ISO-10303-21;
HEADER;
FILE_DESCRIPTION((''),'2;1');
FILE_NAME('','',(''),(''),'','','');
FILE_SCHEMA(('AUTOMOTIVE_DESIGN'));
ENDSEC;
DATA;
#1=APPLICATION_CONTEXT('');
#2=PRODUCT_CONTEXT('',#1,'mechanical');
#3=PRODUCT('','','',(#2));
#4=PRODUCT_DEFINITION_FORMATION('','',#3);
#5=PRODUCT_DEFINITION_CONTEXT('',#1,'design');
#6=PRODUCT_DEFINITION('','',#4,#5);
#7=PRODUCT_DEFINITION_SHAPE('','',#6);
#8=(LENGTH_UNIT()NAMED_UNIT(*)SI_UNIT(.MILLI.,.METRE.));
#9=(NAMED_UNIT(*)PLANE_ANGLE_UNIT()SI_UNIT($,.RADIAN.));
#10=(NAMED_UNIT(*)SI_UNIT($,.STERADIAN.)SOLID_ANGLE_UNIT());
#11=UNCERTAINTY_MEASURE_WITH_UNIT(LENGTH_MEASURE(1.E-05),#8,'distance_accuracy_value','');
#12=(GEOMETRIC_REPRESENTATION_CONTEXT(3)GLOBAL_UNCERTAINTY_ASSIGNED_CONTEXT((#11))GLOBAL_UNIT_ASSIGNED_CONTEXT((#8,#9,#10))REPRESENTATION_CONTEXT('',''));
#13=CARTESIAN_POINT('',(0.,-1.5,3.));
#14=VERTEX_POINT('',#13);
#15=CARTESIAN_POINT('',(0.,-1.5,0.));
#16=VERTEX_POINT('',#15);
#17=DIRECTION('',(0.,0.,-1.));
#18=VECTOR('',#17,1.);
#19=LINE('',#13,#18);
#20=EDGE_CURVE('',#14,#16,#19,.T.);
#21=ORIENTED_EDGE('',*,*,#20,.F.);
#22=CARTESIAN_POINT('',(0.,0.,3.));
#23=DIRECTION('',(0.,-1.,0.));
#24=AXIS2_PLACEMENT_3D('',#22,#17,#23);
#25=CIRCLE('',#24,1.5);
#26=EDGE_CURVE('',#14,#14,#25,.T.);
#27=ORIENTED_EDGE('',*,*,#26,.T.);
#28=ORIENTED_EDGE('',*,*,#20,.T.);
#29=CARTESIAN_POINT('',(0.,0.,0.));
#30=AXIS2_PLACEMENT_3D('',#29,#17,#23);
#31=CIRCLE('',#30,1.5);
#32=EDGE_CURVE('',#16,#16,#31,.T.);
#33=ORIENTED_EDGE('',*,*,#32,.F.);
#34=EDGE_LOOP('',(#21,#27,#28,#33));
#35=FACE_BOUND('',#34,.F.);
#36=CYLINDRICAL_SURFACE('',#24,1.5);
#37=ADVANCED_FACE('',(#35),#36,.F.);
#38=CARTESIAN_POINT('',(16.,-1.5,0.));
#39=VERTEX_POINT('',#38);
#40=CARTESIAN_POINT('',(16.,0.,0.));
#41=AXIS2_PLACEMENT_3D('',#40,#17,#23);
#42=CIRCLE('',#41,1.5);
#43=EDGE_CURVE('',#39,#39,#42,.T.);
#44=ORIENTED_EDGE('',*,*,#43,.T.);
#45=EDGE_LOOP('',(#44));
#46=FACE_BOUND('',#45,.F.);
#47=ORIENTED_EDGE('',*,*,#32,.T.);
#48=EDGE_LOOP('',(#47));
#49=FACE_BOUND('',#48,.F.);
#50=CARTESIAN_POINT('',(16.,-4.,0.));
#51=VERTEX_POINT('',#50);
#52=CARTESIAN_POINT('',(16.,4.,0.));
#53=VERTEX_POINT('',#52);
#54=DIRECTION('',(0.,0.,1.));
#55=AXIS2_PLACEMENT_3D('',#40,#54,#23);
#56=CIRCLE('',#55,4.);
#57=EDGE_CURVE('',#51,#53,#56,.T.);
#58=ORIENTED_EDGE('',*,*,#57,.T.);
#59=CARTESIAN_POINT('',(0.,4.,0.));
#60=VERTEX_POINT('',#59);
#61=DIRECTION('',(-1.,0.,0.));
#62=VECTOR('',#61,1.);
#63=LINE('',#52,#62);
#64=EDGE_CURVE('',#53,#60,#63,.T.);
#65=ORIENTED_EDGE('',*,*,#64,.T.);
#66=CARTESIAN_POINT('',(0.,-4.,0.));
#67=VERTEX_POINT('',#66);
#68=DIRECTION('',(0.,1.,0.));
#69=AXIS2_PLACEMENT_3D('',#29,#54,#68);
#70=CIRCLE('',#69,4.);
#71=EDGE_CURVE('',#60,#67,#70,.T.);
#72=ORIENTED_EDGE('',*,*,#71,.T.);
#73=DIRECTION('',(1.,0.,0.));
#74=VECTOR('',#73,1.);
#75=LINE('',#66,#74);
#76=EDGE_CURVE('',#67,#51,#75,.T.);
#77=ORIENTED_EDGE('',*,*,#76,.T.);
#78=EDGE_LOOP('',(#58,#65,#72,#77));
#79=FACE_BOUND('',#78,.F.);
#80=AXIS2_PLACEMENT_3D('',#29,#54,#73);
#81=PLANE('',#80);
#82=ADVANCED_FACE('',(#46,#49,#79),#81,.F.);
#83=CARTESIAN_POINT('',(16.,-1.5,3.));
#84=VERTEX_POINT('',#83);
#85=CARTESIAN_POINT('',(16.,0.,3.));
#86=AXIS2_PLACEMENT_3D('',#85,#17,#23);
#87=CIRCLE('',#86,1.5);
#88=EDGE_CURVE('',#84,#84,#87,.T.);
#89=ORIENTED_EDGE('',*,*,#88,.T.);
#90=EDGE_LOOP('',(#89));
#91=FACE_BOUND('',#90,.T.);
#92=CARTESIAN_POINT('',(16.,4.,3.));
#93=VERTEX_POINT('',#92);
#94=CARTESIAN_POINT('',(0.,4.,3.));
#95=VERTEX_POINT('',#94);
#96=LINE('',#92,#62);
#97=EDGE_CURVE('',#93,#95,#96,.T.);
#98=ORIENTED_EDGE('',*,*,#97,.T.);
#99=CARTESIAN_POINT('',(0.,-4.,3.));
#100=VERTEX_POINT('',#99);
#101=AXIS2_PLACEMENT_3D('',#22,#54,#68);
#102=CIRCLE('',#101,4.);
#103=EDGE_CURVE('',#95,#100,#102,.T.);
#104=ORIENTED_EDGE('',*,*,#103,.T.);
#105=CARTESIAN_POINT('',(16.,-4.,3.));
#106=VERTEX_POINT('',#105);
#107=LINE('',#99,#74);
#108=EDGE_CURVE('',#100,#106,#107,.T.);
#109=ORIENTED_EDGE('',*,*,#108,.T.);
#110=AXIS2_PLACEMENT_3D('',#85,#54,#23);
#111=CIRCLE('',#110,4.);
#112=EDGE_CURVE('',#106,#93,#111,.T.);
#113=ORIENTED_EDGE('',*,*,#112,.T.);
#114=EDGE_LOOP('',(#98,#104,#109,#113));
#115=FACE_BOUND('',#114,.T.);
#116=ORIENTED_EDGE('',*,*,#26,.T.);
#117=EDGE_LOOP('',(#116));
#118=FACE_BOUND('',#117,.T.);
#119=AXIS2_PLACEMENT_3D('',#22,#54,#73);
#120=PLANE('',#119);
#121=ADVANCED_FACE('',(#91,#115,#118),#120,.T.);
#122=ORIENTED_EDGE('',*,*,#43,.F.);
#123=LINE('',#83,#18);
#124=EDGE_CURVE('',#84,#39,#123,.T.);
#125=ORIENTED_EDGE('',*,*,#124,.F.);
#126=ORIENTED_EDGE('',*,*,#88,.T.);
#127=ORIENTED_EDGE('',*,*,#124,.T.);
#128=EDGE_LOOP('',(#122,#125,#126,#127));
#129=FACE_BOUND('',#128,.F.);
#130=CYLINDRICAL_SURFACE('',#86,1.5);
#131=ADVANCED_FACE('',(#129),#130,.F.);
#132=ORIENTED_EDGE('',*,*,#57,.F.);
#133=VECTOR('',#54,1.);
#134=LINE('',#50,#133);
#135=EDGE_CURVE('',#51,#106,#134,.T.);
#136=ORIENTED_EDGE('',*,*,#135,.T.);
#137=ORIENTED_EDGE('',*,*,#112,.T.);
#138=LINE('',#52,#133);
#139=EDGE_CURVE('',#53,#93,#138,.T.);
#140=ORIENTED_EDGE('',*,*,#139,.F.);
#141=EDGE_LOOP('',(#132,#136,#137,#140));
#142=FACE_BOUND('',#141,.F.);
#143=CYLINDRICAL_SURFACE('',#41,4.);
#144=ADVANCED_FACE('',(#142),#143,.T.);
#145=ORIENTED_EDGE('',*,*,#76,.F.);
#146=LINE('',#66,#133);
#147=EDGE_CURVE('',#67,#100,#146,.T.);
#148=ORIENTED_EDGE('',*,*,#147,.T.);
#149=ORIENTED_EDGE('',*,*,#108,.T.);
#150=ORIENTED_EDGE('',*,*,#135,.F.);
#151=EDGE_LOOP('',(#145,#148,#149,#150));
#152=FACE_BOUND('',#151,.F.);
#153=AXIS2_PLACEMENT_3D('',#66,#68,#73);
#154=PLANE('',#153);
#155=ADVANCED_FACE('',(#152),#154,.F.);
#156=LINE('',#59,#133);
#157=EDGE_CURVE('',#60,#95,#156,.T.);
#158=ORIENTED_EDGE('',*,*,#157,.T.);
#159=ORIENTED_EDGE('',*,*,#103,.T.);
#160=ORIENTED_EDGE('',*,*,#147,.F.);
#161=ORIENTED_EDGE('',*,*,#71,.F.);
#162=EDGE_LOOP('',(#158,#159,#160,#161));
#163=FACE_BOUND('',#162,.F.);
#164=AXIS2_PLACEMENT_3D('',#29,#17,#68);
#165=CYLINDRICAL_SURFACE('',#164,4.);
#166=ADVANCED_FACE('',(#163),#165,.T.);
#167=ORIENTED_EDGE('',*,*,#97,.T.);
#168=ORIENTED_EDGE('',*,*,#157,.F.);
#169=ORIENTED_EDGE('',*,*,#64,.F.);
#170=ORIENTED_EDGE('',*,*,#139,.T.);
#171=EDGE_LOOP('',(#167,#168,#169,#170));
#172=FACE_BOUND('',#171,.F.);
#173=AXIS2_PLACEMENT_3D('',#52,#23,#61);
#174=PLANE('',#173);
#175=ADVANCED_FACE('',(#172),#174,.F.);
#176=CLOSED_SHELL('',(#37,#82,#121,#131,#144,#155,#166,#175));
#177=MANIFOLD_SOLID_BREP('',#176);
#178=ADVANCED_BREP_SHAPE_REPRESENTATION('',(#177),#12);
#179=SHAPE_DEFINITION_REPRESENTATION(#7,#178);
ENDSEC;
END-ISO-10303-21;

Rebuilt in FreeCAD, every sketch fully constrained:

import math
import FreeCAD as App
import Part
import Sketcher
Q = App.Units.Quantity

doc = App.newDocument("Part")
body = doc.addObject("PartDesign::Body", "Body")

sketch1 = body.newObject("Sketcher::SketchObject", "Sketch")
sketch1.AttachmentSupport = (doc.getObject("XY_Plane"), [""])
sketch1.MapMode = "FlatFace"
sketch1.addGeometry(Part.ArcOfCircle(Part.Circle(App.Vector(0, 0, 0), App.Vector(0, 0, 1), 4), math.radians(90), math.radians(270)), False)
sketch1.addGeometry(Part.LineSegment(App.Vector(0, -4, 0), App.Vector(16, -4, 0)), False)
sketch1.addGeometry(Part.ArcOfCircle(Part.Circle(App.Vector(16, 0, 0), App.Vector(0, 0, 1), 4), math.radians(-90), math.radians(90)), False)
sketch1.addGeometry(Part.LineSegment(App.Vector(16, 4, 0), App.Vector(0, 4, 0)), False)
sketch1.addConstraint(Sketcher.Constraint("Tangent", 0, 2, 1, 1))
sketch1.addConstraint(Sketcher.Constraint("Tangent", 1, 2, 2, 1))
sketch1.addConstraint(Sketcher.Constraint("Tangent", 2, 2, 3, 1))
sketch1.addConstraint(Sketcher.Constraint("Tangent", 3, 2, 0, 1))
sketch1.addConstraint(Sketcher.Constraint("Horizontal", 1))
sketch1.addConstraint(Sketcher.Constraint("Horizontal", 3))
sketch1.addConstraint(Sketcher.Constraint("Coincident", 0, 3, -1, 1))
sketch1.addConstraint(Sketcher.Constraint("Radius", 0, Q("4 mm")))
sketch1.addConstraint(Sketcher.Constraint("DistanceX", 1, 1, 1, 2, Q("16 mm")))
pad1 = body.newObject("PartDesign::Pad", "Pad")
pad1.Profile = sketch1
pad1.Length = 3

sketch2 = body.newObject("Sketcher::SketchObject", "Sketch001")
sketch2.AttachmentSupport = (doc.getObject("XY_Plane"), [""])
sketch2.MapMode = "FlatFace"
sketch2.AttachmentOffset = App.Placement(App.Vector(0, 0, 3), App.Rotation())
sketch2.addGeometry(Part.Circle(App.Vector(0, 0, 0), App.Vector(0, 0, 1), 1.5), False)
sketch2.addGeometry(Part.Circle(App.Vector(16, 0, 0), App.Vector(0, 0, 1), 1.5), False)
sketch2.addConstraint(Sketcher.Constraint("Coincident", 0, 3, -1, 1))
sketch2.addConstraint(Sketcher.Constraint("Equal", 0, 1))
sketch2.addConstraint(Sketcher.Constraint("PointOnObject", 1, 3, -1))
sketch2.addConstraint(Sketcher.Constraint("Diameter", 0, Q("3 mm")))
sketch2.addConstraint(Sketcher.Constraint("DistanceX", -1, 1, 1, 3, Q("16 mm")))
doc.recompute()
hole = body.newObject("PartDesign::Hole", "Hole")
hole.Profile = sketch2
hole.ThreadType = "None"
hole.Diameter = 3
hole.DepthType = "ThroughAll"

doc.recompute()
